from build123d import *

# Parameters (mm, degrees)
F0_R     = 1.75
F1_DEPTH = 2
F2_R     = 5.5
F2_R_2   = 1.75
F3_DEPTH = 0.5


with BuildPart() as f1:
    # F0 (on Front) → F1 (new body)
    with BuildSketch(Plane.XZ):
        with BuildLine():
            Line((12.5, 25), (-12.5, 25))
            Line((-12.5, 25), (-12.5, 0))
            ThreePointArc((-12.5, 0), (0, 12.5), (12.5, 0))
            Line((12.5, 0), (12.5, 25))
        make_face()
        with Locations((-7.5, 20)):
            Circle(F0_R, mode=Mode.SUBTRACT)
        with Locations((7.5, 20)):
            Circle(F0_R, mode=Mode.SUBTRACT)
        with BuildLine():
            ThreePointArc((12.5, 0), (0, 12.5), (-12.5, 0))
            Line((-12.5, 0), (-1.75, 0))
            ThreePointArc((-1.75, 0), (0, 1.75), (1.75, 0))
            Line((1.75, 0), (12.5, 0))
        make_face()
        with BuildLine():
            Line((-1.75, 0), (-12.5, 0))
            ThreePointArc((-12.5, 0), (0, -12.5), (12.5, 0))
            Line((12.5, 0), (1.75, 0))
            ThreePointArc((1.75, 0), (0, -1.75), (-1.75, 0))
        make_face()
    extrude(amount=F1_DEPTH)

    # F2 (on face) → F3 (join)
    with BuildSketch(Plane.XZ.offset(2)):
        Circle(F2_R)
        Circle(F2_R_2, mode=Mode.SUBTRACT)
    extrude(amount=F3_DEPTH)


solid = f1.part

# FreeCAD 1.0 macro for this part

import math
import FreeCAD as App
import Part
import Sketcher

V = App.Vector

doc = App.newDocument("Part")
body = doc.addObject("PartDesign::Body", "Body")

# Sketch on XZ plane
sketch1 = doc.addObject("Sketcher::SketchObject", "Sketch")
body.addObject(sketch1)
sketch1.AttachmentSupport = (doc.XZ_Plane, [""])
sketch1.MapMode = "FlatFace"
sketch1.addGeometry(Part.LineSegment(V(12.5, 25, 0), V(-12.5, 25, 0)), False)
sketch1.addGeometry(Part.LineSegment(V(-12.5, 25, 0), V(-12.5, 0, 0)), False)
sketch1.addGeometry(Part.ArcOfCircle(Part.Circle(V(0, 0, 0), V(0, 0, 1), 12.5), math.radians(180), math.radians(360)), False)
sketch1.addGeometry(Part.LineSegment(V(12.5, 0, 0), V(12.5, 25, 0)), False)
sketch1.addGeometry(Part.Circle(V(0, 0, 0), V(0, 0, 1), 1.8), False)
sketch1.addGeometry(Part.Circle(V(-7.5, 20, 0), V(0, 0, 1), 1.8), False)
sketch1.addGeometry(Part.Circle(V(7.5, 20, 0), V(0, 0, 1), 1.8), False)
sketch1.addConstraint(Sketcher.Constraint("Coincident", 0, 2, 1, 1))
sketch1.addConstraint(Sketcher.Constraint("Tangent", 1, 2, 2, 1))
sketch1.addConstraint(Sketcher.Constraint("Tangent", 2, 2, 3, 1))
sketch1.addConstraint(Sketcher.Constraint("Coincident", 3, 2, 0, 1))
sketch1.addConstraint(Sketcher.Constraint("Horizontal", 0))
sketch1.addConstraint(Sketcher.Constraint("Vertical", 1))
sketch1.addConstraint(Sketcher.Constraint("Vertical", 3))
sketch1.addConstraint(Sketcher.Constraint("Coincident", 2, 3, -1, 1))
sketch1.addConstraint(Sketcher.Constraint("Coincident", 4, 3, -1, 1))
sketch1.addConstraint(Sketcher.Constraint("Equal", 4, 5))
sketch1.addConstraint(Sketcher.Constraint("Equal", 5, 6))
sketch1.addConstraint(Sketcher.Constraint("Symmetric", 5, 3, 6, 3, -2))
sketch1.addConstraint(Sketcher.Constraint("Equal", 0, 1))
sketch1.addConstraint(Sketcher.Constraint("Diameter", 4, 3.5))
sketch1.addConstraint(Sketcher.Constraint("Radius", 2, 12.5))
sketch1.addConstraint(Sketcher.Constraint("DistanceY", -1, 1, 5, 3, 20.0))
sketch1.addConstraint(Sketcher.Constraint("DistanceX", 5, 3, 6, 3, 15.0))
pad1 = doc.addObject("PartDesign::Pad", "Pad")
body.addObject(pad1)
pad1.Profile = sketch1
pad1.Length = 2

# Sketch on XZ plane
sketch2 = doc.addObject("Sketcher::SketchObject", "Sketch001")
body.addObject(sketch2)
sketch2.AttachmentSupport = (doc.XZ_Plane, [""])
sketch2.MapMode = "FlatFace"
sketch2.AttachmentOffset = App.Placement(V(0, 0, 2), App.Rotation())
sketch2.addGeometry(Part.Circle(V(0, 0, 0), V(0, 0, 1), 5.5), False)
sketch2.addGeometry(Part.Circle(V(0, 0, 0), V(0, 0, 1), 1.8), False)
sketch2.addConstraint(Sketcher.Constraint("Coincident", 0, 3, -1, 1))
sketch2.addConstraint(Sketcher.Constraint("Coincident", 1, 3, -1, 1))
sketch2.addConstraint(Sketcher.Constraint("Diameter", 0, 11.0))
sketch2.addConstraint(Sketcher.Constraint("Diameter", 1, 3.5))
pad2 = doc.addObject("PartDesign::Pad", "Pad001")
body.addObject(pad2)
pad2.Profile = sketch2
pad2.Length = 0.5

doc.recompute()
